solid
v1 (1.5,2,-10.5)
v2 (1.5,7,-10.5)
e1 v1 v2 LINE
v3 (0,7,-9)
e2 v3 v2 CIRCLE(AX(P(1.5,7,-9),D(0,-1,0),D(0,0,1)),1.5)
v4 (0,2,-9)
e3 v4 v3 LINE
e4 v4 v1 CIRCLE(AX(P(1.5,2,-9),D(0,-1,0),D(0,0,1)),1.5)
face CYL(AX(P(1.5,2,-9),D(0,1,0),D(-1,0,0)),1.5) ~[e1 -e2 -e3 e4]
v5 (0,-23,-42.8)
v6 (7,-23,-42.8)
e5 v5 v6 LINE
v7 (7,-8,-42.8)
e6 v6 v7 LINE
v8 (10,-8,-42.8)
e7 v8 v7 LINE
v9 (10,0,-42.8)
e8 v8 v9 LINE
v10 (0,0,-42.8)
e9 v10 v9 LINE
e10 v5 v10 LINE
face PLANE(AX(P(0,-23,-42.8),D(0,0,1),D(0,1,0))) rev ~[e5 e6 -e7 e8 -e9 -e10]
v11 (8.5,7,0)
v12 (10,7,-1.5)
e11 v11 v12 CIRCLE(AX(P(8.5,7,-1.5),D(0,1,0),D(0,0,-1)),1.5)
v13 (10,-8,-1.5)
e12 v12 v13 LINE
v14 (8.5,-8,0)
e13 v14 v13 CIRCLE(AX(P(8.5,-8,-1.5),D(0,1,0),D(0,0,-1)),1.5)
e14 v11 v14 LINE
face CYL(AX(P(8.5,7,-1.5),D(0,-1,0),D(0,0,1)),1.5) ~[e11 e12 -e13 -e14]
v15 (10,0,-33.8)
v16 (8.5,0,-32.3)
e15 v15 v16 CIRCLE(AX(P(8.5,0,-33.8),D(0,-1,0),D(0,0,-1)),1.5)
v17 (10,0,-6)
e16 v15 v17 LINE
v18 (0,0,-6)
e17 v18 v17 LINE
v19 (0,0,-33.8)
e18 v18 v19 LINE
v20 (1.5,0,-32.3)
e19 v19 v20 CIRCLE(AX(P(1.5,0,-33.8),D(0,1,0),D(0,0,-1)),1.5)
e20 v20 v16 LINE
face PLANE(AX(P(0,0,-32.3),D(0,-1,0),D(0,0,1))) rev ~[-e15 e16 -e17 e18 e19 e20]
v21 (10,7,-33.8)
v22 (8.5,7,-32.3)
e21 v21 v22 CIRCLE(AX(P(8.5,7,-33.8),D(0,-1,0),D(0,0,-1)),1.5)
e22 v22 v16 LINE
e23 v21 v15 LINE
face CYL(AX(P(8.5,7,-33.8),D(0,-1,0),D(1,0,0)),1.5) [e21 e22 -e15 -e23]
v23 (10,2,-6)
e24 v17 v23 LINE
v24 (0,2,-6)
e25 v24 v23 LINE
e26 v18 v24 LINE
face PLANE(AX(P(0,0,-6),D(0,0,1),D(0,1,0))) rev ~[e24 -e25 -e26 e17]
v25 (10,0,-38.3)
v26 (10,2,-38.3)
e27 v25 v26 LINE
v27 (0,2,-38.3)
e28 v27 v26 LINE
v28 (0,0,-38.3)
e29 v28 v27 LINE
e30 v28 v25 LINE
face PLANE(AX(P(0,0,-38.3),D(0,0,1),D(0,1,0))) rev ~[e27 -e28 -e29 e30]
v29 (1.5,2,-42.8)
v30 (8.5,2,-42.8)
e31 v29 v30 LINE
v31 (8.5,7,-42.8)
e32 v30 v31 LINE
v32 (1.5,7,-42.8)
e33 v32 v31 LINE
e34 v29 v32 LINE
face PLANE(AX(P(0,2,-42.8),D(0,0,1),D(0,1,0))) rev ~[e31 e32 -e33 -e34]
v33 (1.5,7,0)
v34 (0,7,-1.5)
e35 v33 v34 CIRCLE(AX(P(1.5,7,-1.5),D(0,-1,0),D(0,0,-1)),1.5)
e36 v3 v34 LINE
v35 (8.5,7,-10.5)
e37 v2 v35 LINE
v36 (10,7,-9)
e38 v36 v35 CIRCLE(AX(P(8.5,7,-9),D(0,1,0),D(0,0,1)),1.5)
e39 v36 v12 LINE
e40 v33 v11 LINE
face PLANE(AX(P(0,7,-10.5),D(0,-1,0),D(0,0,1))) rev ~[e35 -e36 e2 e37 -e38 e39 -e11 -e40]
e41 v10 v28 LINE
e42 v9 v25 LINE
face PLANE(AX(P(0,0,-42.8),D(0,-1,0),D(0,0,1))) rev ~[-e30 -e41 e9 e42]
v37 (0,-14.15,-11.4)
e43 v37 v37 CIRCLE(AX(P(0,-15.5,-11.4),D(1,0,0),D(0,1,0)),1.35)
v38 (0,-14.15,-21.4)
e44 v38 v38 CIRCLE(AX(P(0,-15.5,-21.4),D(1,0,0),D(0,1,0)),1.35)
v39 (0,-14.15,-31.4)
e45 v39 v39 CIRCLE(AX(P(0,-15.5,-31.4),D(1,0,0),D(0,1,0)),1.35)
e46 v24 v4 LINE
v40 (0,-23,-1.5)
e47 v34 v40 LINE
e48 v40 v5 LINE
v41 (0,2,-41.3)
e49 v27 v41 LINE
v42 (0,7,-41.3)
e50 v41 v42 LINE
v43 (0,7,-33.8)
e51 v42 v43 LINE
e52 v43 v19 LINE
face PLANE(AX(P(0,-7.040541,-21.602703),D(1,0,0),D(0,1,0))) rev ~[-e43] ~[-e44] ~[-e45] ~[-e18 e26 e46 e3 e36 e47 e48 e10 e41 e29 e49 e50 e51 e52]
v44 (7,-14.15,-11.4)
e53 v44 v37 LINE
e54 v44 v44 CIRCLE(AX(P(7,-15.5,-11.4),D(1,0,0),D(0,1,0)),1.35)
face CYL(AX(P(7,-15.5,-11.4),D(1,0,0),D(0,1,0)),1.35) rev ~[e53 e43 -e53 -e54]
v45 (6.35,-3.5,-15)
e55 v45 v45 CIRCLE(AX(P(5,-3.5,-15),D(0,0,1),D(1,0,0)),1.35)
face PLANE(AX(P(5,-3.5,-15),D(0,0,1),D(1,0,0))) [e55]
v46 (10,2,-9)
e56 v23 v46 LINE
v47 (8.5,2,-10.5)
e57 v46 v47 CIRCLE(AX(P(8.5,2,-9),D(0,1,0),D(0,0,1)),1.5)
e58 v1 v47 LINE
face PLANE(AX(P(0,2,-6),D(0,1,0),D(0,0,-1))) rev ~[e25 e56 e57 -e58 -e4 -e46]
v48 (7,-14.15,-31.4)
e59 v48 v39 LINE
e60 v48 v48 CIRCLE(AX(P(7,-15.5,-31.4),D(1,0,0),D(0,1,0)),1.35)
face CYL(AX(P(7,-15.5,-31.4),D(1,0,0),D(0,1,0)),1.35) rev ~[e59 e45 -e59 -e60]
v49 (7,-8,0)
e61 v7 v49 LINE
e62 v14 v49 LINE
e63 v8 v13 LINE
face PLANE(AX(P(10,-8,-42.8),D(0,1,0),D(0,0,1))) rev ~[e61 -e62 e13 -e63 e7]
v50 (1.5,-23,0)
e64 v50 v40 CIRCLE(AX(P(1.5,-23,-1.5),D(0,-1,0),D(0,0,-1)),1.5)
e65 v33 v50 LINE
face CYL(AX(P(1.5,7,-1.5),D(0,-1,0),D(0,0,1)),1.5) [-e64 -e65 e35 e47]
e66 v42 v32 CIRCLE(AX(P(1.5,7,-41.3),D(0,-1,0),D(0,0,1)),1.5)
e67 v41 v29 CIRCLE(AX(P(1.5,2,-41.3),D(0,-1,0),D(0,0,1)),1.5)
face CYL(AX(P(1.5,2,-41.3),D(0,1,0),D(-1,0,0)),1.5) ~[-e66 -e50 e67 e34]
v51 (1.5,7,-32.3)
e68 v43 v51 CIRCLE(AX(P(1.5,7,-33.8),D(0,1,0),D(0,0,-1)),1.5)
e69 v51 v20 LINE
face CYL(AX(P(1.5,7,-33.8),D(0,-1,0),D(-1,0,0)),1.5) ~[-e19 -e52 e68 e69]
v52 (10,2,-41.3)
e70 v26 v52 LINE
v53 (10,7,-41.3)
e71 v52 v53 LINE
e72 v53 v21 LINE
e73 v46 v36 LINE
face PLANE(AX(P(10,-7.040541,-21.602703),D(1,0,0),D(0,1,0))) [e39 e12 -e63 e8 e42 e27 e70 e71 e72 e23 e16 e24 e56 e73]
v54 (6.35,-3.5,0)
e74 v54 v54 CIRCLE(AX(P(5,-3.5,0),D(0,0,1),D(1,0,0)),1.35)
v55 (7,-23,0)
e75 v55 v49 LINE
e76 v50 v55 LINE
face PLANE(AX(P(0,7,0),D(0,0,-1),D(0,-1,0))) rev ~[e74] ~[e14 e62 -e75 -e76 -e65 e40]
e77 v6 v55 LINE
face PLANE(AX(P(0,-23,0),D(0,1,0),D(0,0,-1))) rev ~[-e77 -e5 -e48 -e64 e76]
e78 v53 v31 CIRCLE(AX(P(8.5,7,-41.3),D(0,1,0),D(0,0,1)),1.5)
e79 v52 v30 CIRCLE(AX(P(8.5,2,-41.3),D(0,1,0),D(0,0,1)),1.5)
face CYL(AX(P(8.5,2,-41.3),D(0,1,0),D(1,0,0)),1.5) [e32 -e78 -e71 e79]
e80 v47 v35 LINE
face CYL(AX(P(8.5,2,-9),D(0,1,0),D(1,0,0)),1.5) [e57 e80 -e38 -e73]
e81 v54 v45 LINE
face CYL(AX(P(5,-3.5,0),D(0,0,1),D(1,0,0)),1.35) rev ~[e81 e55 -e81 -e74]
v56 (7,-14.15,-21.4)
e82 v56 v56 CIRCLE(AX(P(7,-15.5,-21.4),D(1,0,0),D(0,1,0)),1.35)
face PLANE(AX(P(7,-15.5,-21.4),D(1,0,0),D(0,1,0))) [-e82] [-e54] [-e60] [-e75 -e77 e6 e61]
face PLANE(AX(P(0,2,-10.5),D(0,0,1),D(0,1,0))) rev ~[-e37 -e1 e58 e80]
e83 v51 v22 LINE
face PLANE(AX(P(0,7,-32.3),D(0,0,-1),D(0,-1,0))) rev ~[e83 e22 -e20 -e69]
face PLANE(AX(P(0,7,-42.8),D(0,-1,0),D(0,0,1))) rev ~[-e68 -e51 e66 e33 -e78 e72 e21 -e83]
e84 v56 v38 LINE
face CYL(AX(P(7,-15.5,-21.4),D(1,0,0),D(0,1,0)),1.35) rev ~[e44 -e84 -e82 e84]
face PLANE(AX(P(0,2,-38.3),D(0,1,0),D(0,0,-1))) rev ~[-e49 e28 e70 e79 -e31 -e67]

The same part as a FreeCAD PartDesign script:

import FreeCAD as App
import Part
import Sketcher

V = App.Vector


def edges_at(feature, points):
    """Names of the edges that pass closest to the given points."""
    edges = feature.Shape.Edges
    near = lambda p: min(range(len(edges)), key=lambda i: edges[i].distToShape(Part.Vertex(*p))[0])
    return sorted({f"Edge{near(p) + 1}" for p in points})

doc = App.newDocument("Part")
body = doc.addObject("PartDesign::Body", "Body")

# Sketch on YZ plane
sketch1 = body.newObject("Sketcher::SketchObject", "Sketch")
sketch1.AttachmentSupport = (doc.getObject("YZ_Plane"), [""])
sketch1.MapMode = "FlatFace"
sketch1.addGeometry(Part.LineSegment(V(7, 0, 0), V(-23, 0, 0)), False)
sketch1.addGeometry(Part.LineSegment(V(-23, 0, 0), V(-23, -42.8, 0)), False)
sketch1.addGeometry(Part.LineSegment(V(-23, -42.8, 0), V(0, -42.8, 0)), False)
sketch1.addGeometry(Part.LineSegment(V(0, -42.8, 0), V(0, -38.3, 0)), False)
sketch1.addGeometry(Part.LineSegment(V(0, -38.3, 0), V(2, -38.3, 0)), False)
sketch1.addGeometry(Part.LineSegment(V(2, -38.3, 0), V(2, -42.8, 0)), False)
sketch1.addGeometry(Part.LineSegment(V(2, -42.8, 0), V(7, -42.8, 0)), False)
sketch1.addGeometry(Part.LineSegment(V(7, -42.8, 0), V(7, -32.3, 0)), False)
sketch1.addGeometry(Part.LineSegment(V(7, -32.3, 0), V(0, -32.3, 0)), False)
sketch1.addGeometry(Part.LineSegment(V(0, -32.3, 0), V(0, -6, 0)), False)
sketch1.addGeometry(Part.LineSegment(V(0, -6, 0), V(2, -6, 0)), False)
sketch1.addGeometry(Part.LineSegment(V(2, -6, 0), V(2, -10.5, 0)), False)
sketch1.addGeometry(Part.LineSegment(V(2, -10.5, 0), V(7, -10.5, 0)), False)
sketch1.addGeometry(Part.LineSegment(V(7, -10.5, 0), V(7, 0, 0)), False)
sketch1.addConstraint(Sketcher.Constraint("Coincident", 0, 2, 1, 1))
sketch1.addConstraint(Sketcher.Constraint("Coincident", 1, 2, 2, 1))
sketch1.addConstraint(Sketcher.Constraint("Coincident", 2, 2, 3, 1))
sketch1.addConstraint(Sketcher.Constraint("Coincident", 3, 2, 4, 1))
sketch1.addConstraint(Sketcher.Constraint("Coincident", 4, 2, 5, 1))
sketch1.addConstraint(Sketcher.Constraint("Coincident", 5, 2, 6, 1))
sketch1.addConstraint(Sketcher.Constraint("Coincident", 6, 2, 7, 1))
sketch1.addConstraint(Sketcher.Constraint("Coincident", 7, 2, 8, 1))
sketch1.addConstraint(Sketcher.Constraint("Coincident", 8, 2, 9, 1))
sketch1.addConstraint(Sketcher.Constraint("Coincident", 9, 2, 10, 1))
sketch1.addConstraint(Sketcher.Constraint("Coincident", 10, 2, 11, 1))
sketch1.addConstraint(Sketcher.Constraint("Coincident", 11, 2, 12, 1))
sketch1.addConstraint(Sketcher.Constraint("Coincident", 12, 2, 13, 1))
sketch1.addConstraint(Sketcher.Constraint("Coincident", 13, 2, 0, 1))
sketch1.addConstraint(Sketcher.Constraint("Horizontal", 0))
sketch1.addConstraint(Sketcher.Constraint("Vertical", 1))
sketch1.addConstraint(Sketcher.Constraint("Horizontal", 2))
sketch1.addConstraint(Sketcher.Constraint("Vertical", 3))
sketch1.addConstraint(Sketcher.Constraint("Horizontal", 4))
sketch1.addConstraint(Sketcher.Constraint("Vertical", 5))
sketch1.addConstraint(Sketcher.Constraint("Horizontal", 6))
sketch1.addConstraint(Sketcher.Constraint("Vertical", 7))
sketch1.addConstraint(Sketcher.Constraint("Horizontal", 8))
sketch1.addConstraint(Sketcher.Constraint("Vertical", 9))
sketch1.addConstraint(Sketcher.Constraint("Horizontal", 10))
sketch1.addConstraint(Sketcher.Constraint("Vertical", 11))
sketch1.addConstraint(Sketcher.Constraint("Horizontal", 12))
sketch1.addConstraint(Sketcher.Constraint("Vertical", 13))
sketch1.addConstraint(Sketcher.Constraint("PointOnObject", 0, 2, -1))
sketch1.addConstraint(Sketcher.Constraint("PointOnObject", 2, 2, -2))
sketch1.addConstraint(Sketcher.Constraint("PointOnObject", 8, 2, -2))
sketch1.addConstraint(Sketcher.Constraint("Horizontal", 2, 2, 5, 2))
sketch1.addConstraint(Sketcher.Constraint("Vertical", 5, 2, 10, 2))
sketch1.addConstraint(Sketcher.Constraint("Vertical", 7, 2, 12, 2))
sketch1.addConstraint(Sketcher.Constraint("Equal", 5, 11))
sketch1.addConstraint(Sketcher.Constraint("Equal", 7, 13))
sketch1.addConstraint(Sketcher.Constraint("DistanceX", 0, 2, 0, 1, 30.0))
sketch1.addConstraint(Sketcher.Constraint("DistanceX", 2, 1, 2, 2, 23.0))
sketch1.addConstraint(Sketcher.Constraint("DistanceX", 4, 1, 4, 2, 2.0))
sketch1.addConstraint(Sketcher.Constraint("DistanceY", 1, 2, 1, 1, 42.8))
sketch1.addConstraint(Sketcher.Constraint("DistanceY", 3, 1, 3, 2, 4.5))
sketch1.addConstraint(Sketcher.Constraint("DistanceY", 7, 1, 7, 2, 10.5))
pad1 = body.newObject("PartDesign::Pad", "Pad")
pad1.Profile = sketch1
pad1.Length = 10

# Sketch on YZ plane
sketch2 = body.newObject("Sketcher::SketchObject", "Sketch001")
sketch2.AttachmentSupport = (doc.getObject("YZ_Plane"), [""])
sketch2.MapMode = "FlatFace"
sketch2.AttachmentOffset = App.Placement(V(0, 0, 10), App.Rotation())
sketch2.addGeometry(Part.LineSegment(V(-23, 0, 0), V(-23, -42.8, 0)), False)
sketch2.addGeometry(Part.LineSegment(V(-23, -42.8, 0), V(-8, -42.8, 0)), False)
sketch2.addGeometry(Part.LineSegment(V(-8, -42.8, 0), V(-8, 0, 0)), False)
sketch2.addGeometry(Part.LineSegment(V(-8, 0, 0), V(-23, 0, 0)), False)
sketch2.addConstraint(Sketcher.Constraint("Coincident", 0, 2, 1, 1))
sketch2.addConstraint(Sketcher.Constraint("Coincident", 1, 2, 2, 1))
sketch2.addConstraint(Sketcher.Constraint("Coincident", 2, 2, 3, 1))
sketch2.addConstraint(Sketcher.Constraint("Coincident", 3, 2, 0, 1))
sketch2.addConstraint(Sketcher.Constraint("Vertical", 0))
sketch2.addConstraint(Sketcher.Constraint("Horizontal", 1))
sketch2.addConstraint(Sketcher.Constraint("Vertical", 2))
sketch2.addConstraint(Sketcher.Constraint("Horizontal", 3))
sketch2.addConstraint(Sketcher.Constraint("PointOnObject", 2, 2, -1))
sketch2.addConstraint(Sketcher.Constraint("DistanceX", 1, 1, 1, 2, 15.0))
sketch2.addConstraint(Sketcher.Constraint("DistanceY", 0, 2, 0, 1, 42.8))
sketch2.addConstraint(Sketcher.Constraint("DistanceX", 0, 2, -1, 1, 23.0))
pocket1 = body.newObject("PartDesign::Pocket", "Pocket")
pocket1.Profile = sketch2
pocket1.Length = 3

# Sketch on YZ plane
sketch3 = body.newObject("Sketcher::SketchObject", "Sketch002")
sketch3.AttachmentSupport = (doc.getObject("YZ_Plane"), [""])
sketch3.MapMode = "FlatFace"
sketch3.AttachmentOffset = App.Placement(V(0, 0, 7), App.Rotation())
sketch3.addGeometry(Part.Circle(V(-15.5, -21.4, 0), V(0, 0, 1), 1.35), False)
sketch3.addGeometry(Part.Circle(V(-15.5, -11.4, 0), V(0, 0, 1), 1.35), False)
sketch3.addGeometry(Part.Circle(V(-15.5, -31.4, 0), V(0, 0, 1), 1.35), False)
sketch3.addConstraint(Sketcher.Constraint("Equal", 0, 1))
sketch3.addConstraint(Sketcher.Constraint("Equal", 1, 2))
sketch3.addConstraint(Sketcher.Constraint("Vertical", 0, 3, 1, 3))
sketch3.addConstraint(Sketcher.Constraint("Vertical", 1, 3, 2, 3))
sketch3.addConstraint(Sketcher.Constraint("Diameter", 0, 2.7))
sketch3.addConstraint(Sketcher.Constraint("DistanceY", 0, 3, 1, 3, 10.0))
sketch3.addConstraint(Sketcher.Constraint("DistanceY", 2, 3, 0, 3, 10.0))
sketch3.addConstraint(Sketcher.Constraint("DistanceX", 0, 3, -1, 1, 15.5))
sketch3.addConstraint(Sketcher.Constraint("DistanceY", 0, 3, -1, 1, 21.4))
pocket2 = body.newObject("PartDesign::Pocket", "Pocket001")
pocket2.Profile = sketch3
pocket2.Type = "ThroughAll"

# Sketch on XY plane
sketch4 = body.newObject("Sketcher::SketchObject", "Sketch003")
sketch4.AttachmentSupport = (doc.getObject("XY_Plane"), [""])
sketch4.MapMode = "FlatFace"
sketch4.addGeometry(Part.Circle(V(5, -3.5, 0), V(0, 0, 1), 1.35), False)
sketch4.addConstraint(Sketcher.Constraint("Diameter", 0, 2.7))
sketch4.addConstraint(Sketcher.Constraint("DistanceX", -1, 1, 0, 3, 5.0))
sketch4.addConstraint(Sketcher.Constraint("DistanceY", 0, 3, -1, 1, 3.5))
pocket3 = body.newObject("PartDesign::Pocket", "Pocket002")
pocket3.Profile = sketch4
pocket3.Length = 15
doc.recompute()

fillet = body.newObject("PartDesign::Fillet", "Fillet")
fillet.Base = (pocket3, edges_at(pocket3, [
    (10, -0.5, 0),
    (0, -8, 0),
    (10, 4.5, -10.5),
    (10, 3.5, -32.3),
    (10, 4.5, -42.8),
    (0, 4.5, -10.5),
    (0, 4.5, -42.8),
    (0, 3.5, -32.3),
]))
fillet.Radius = 1.5

doc.recompute()
